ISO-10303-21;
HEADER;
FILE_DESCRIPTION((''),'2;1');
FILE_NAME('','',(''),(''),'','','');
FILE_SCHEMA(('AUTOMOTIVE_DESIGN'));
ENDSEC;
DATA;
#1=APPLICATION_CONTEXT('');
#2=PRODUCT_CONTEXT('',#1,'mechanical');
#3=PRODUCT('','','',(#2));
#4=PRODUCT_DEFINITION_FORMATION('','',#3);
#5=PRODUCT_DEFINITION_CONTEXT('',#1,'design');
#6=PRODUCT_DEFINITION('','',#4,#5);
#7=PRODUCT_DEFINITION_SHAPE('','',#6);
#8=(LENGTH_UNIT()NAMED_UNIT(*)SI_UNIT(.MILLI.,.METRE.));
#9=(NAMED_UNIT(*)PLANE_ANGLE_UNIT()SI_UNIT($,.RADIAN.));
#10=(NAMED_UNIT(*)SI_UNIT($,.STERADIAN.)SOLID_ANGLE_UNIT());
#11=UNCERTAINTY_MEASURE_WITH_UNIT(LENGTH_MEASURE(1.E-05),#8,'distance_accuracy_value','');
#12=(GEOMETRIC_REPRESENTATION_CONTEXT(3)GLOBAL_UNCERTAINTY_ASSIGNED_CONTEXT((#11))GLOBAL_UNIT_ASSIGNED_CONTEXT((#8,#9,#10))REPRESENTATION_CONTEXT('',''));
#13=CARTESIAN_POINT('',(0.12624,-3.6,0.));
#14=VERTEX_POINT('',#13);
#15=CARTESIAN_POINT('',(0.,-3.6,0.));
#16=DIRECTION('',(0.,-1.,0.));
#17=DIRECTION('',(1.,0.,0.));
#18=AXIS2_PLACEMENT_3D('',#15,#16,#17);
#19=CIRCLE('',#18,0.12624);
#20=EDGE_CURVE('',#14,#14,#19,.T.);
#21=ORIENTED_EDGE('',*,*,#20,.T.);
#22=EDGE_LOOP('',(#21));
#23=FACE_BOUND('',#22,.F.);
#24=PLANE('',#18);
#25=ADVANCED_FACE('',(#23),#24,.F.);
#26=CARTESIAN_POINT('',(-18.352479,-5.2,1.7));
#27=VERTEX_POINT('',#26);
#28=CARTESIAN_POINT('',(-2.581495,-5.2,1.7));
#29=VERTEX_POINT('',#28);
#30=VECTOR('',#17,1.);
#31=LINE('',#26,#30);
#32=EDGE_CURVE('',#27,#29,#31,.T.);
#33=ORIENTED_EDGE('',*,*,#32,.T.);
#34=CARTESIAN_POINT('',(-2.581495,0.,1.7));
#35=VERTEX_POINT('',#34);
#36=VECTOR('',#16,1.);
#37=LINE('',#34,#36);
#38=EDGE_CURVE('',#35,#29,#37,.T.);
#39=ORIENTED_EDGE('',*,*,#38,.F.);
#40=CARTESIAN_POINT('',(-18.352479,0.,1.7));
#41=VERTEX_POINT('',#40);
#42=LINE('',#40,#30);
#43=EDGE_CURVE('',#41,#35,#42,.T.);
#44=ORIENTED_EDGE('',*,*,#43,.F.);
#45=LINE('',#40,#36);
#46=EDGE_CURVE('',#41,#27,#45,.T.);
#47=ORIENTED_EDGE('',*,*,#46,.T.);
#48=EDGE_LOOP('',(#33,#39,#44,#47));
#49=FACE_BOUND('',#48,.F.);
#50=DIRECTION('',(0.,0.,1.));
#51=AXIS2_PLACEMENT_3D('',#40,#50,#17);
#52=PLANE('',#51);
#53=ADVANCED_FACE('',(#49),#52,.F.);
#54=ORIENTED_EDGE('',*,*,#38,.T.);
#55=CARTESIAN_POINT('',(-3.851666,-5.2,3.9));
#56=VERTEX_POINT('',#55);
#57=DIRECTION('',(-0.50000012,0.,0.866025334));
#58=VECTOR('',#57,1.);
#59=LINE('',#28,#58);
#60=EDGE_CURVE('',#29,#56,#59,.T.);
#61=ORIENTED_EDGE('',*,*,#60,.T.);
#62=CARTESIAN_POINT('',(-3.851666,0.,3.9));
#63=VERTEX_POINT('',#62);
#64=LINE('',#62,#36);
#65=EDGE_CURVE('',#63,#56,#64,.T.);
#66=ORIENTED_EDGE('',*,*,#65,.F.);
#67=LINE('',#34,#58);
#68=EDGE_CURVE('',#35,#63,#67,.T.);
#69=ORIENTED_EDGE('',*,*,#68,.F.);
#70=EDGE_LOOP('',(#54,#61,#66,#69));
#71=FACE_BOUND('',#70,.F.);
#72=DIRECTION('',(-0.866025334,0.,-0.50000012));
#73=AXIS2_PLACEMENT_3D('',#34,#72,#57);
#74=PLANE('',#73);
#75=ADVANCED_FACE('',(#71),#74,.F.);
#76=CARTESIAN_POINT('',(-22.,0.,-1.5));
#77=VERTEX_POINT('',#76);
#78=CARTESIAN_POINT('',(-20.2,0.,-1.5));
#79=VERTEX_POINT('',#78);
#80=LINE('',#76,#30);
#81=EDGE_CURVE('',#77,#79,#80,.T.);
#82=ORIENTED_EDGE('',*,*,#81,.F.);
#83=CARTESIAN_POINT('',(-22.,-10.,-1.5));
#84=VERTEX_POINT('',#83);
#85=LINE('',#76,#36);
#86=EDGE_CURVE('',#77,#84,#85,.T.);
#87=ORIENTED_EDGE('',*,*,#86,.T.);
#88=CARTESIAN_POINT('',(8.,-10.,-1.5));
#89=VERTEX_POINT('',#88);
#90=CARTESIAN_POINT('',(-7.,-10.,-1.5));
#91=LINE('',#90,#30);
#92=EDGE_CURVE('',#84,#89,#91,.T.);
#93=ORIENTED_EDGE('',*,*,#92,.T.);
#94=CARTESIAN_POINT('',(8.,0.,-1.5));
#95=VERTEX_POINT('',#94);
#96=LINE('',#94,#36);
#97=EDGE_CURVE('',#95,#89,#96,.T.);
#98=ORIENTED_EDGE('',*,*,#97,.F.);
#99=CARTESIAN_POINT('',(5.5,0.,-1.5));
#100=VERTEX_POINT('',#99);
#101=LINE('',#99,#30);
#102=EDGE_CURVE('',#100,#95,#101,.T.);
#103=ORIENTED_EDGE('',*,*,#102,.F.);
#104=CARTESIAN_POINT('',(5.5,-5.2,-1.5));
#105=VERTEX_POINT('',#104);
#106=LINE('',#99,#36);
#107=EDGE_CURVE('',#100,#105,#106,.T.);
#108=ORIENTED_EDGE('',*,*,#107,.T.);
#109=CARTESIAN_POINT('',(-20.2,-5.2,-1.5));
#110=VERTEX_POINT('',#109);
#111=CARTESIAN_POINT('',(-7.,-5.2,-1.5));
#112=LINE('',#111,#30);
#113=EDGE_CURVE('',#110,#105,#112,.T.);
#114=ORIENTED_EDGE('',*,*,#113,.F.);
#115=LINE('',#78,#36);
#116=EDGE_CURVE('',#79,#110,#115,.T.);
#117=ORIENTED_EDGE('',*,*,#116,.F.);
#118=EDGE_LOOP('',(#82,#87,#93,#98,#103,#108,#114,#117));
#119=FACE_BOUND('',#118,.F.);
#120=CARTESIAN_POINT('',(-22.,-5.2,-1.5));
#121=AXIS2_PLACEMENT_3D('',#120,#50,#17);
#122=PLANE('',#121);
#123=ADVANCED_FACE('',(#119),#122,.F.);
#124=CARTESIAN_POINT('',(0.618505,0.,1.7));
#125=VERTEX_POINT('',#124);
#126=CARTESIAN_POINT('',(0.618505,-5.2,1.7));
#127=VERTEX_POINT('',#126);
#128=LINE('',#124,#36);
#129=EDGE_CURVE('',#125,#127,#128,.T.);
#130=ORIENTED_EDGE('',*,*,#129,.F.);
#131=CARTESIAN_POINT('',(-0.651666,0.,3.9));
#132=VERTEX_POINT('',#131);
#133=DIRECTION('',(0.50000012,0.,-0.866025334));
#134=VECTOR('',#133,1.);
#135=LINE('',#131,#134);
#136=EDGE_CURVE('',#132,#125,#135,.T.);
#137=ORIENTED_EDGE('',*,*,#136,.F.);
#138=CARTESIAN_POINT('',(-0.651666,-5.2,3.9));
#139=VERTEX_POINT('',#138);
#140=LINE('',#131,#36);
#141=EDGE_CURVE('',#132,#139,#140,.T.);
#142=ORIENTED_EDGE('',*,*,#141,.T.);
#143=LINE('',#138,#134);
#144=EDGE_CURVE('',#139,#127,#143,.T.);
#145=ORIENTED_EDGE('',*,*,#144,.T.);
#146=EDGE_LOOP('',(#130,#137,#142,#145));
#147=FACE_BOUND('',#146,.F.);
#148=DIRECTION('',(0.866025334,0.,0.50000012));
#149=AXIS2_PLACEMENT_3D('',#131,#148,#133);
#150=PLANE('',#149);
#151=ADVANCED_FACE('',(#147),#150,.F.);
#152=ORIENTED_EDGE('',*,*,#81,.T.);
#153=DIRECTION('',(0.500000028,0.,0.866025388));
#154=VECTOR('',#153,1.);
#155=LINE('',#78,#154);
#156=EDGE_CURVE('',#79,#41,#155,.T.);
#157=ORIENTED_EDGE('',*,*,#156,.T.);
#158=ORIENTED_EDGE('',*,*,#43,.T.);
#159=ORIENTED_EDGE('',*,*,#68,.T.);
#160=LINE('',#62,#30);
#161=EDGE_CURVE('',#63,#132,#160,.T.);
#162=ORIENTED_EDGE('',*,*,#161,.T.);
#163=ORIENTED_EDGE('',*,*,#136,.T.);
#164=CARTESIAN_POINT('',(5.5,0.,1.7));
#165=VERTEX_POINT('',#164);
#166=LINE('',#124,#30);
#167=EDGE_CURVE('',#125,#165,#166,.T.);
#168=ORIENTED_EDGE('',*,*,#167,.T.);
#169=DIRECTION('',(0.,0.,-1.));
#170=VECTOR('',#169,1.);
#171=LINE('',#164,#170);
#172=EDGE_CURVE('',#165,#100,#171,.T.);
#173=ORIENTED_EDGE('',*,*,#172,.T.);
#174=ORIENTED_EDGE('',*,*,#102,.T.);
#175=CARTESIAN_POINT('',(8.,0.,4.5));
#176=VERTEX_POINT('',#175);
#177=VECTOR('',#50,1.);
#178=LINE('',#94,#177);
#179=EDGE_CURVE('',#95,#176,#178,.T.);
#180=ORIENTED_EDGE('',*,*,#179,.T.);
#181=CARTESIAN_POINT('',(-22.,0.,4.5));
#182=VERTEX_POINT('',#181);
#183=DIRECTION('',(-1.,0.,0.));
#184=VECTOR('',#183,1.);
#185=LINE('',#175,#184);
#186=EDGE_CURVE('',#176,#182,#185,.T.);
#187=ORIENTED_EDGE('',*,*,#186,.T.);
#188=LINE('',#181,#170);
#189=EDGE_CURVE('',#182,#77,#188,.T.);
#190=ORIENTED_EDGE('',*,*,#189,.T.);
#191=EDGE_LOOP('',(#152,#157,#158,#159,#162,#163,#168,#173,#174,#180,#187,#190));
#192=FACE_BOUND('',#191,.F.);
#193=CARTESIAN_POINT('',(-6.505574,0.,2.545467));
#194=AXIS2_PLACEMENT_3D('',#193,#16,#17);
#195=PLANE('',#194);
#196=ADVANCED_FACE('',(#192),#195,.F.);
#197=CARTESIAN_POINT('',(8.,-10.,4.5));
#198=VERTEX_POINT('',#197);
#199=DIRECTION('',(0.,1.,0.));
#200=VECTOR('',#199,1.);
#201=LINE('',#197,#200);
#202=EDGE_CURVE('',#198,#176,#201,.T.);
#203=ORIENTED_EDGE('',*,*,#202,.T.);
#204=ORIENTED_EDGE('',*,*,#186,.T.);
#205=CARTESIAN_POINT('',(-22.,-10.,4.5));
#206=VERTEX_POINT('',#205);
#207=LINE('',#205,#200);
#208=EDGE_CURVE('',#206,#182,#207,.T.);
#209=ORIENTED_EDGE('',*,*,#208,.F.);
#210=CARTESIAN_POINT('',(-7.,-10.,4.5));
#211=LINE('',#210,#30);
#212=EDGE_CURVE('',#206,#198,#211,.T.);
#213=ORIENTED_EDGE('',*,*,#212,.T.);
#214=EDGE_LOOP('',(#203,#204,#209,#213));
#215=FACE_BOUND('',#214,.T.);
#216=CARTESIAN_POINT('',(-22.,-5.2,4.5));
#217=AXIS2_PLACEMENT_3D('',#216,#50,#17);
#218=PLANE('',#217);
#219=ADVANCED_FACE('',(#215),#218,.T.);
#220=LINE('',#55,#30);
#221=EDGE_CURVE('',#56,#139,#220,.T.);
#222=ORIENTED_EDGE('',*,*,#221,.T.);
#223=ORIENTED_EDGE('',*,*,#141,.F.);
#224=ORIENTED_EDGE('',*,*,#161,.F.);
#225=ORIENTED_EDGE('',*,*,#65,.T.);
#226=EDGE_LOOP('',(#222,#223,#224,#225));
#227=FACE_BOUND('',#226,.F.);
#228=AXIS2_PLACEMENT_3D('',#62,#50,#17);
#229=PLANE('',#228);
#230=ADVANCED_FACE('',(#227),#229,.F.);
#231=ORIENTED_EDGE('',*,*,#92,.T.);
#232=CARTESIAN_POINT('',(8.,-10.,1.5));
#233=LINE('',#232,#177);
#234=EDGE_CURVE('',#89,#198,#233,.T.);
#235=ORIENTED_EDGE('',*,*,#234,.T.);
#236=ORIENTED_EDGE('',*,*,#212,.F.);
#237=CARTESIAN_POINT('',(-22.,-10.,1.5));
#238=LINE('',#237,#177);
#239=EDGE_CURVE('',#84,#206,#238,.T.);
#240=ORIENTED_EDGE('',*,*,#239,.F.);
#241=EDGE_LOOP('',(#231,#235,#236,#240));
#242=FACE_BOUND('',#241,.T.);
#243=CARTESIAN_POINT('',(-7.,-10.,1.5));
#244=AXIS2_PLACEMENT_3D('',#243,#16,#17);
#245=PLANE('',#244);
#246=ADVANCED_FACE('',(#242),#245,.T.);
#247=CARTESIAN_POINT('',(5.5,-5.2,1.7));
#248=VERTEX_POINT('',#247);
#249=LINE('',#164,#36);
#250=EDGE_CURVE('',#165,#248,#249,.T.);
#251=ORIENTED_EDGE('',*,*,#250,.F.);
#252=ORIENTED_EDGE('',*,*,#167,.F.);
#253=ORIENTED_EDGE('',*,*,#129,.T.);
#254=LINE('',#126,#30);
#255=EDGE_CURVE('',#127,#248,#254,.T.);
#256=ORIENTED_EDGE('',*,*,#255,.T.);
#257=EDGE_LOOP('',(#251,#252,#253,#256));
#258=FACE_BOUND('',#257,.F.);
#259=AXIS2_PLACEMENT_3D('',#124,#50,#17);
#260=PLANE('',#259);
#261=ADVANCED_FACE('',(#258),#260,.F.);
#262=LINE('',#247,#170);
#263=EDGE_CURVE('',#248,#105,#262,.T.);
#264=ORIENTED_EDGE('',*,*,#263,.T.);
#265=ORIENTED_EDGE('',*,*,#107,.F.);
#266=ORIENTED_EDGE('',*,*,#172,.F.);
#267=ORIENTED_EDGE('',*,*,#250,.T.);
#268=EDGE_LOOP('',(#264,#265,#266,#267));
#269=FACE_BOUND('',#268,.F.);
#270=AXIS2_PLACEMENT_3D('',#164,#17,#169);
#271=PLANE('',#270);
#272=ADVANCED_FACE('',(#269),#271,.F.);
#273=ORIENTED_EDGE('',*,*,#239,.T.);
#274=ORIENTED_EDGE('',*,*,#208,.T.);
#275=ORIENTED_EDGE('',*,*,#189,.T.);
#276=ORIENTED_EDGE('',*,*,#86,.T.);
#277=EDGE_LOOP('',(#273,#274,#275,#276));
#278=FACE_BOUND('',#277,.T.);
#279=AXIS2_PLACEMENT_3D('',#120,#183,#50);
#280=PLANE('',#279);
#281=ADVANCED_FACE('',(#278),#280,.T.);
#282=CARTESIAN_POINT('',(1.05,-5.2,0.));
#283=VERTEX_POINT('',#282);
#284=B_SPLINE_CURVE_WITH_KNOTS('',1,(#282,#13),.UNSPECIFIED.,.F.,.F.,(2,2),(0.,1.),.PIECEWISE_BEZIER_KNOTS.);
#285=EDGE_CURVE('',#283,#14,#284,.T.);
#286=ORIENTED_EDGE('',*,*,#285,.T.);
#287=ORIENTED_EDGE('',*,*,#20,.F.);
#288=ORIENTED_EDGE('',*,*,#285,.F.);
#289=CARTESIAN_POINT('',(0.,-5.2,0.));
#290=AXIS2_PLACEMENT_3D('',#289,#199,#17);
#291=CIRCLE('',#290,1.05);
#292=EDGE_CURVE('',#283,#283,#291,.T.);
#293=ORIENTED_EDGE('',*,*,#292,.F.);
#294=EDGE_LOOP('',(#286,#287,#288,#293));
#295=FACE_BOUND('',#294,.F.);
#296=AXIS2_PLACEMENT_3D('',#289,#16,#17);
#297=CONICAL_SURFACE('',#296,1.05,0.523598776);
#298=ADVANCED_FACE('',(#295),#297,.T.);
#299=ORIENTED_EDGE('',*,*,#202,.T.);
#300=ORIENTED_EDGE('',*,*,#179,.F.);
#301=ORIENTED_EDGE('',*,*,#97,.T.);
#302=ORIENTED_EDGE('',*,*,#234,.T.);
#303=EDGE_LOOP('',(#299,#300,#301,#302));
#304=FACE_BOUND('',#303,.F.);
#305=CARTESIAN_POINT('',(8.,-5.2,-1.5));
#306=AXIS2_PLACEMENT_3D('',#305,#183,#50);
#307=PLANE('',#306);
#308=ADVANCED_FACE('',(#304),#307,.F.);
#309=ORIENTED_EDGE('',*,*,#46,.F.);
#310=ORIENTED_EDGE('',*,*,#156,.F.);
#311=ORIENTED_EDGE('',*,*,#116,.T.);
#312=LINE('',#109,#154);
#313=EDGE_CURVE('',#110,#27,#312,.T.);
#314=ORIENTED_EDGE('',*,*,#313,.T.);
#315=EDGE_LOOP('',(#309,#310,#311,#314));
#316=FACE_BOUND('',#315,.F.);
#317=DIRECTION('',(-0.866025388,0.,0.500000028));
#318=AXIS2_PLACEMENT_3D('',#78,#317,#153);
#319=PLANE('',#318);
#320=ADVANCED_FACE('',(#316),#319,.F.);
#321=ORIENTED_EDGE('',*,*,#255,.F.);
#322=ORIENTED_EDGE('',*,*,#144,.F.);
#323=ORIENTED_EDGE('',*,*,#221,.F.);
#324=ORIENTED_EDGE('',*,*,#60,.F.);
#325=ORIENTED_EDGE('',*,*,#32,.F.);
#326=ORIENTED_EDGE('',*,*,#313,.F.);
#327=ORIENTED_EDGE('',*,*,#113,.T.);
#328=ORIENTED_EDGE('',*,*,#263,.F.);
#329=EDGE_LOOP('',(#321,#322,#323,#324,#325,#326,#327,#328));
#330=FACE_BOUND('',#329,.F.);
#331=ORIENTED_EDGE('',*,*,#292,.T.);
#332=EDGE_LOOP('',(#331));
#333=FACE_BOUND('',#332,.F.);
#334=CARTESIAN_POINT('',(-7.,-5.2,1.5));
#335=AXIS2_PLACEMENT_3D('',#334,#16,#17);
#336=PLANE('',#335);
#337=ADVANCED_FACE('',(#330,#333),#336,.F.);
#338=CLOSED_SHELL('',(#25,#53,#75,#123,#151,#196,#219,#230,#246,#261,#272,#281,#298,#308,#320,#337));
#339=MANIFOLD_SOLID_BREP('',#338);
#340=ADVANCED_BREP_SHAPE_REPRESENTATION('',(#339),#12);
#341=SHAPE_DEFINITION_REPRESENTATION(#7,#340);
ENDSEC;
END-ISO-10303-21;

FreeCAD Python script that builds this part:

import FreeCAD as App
import Part
import Sketcher
from FreeCAD import Vector
Q = App.Units.Quantity

doc = App.newDocument("Part")
body = doc.addObject("PartDesign::Body", "Body")
body.AllowCompound = True

# Sketch on XZ plane
sketch1 = body.newObject("Sketcher::SketchObject", "Sketch")
sketch1.AttachmentSupport = (doc.getObject("XZ_Plane"), [""])
sketch1.MapMode = "FlatFace"
sketch1.addGeometry(Part.LineSegment(Vector(-20.2, -1.5, 0), Vector(-18.4, 1.7, 0)), False)
sketch1.addGeometry(Part.LineSegment(Vector(-18.4, 1.7, 0), Vector(-2.6, 1.7, 0)), False)
sketch1.addGeometry(Part.LineSegment(Vector(-2.6, 1.7, 0), Vector(-3.9, 3.9, 0)), False)
sketch1.addGeometry(Part.LineSegment(Vector(-3.9, 3.9, 0), Vector(-0.7, 3.9, 0)), False)
sketch1.addGeometry(Part.LineSegment(Vector(-0.7, 3.9, 0), Vector(0.6, 1.7, 0)), False)
sketch1.addGeometry(Part.LineSegment(Vector(0.6, 1.7, 0), Vector(5.5, 1.7, 0)), False)
sketch1.addGeometry(Part.LineSegment(Vector(5.5, 1.7, 0), Vector(5.5, -1.5, 0)), False)
sketch1.addGeometry(Part.LineSegment(Vector(5.5, -1.5, 0), Vector(8, -1.5, 0)), False)
sketch1.addGeometry(Part.LineSegment(Vector(8, -1.5, 0), Vector(8, 4.5, 0)), False)
sketch1.addGeometry(Part.LineSegment(Vector(8, 4.5, 0), Vector(-22, 4.5, 0)), False)
sketch1.addGeometry(Part.LineSegment(Vector(-22, 4.5, 0), Vector(-22, -1.5, 0)), False)
sketch1.addGeometry(Part.LineSegment(Vector(-22, -1.5, 0), Vector(-20.2, -1.5, 0)), False)
sketch1.addConstraint(Sketcher.Constraint("Coincident", 0, 2, 1, 1))
sketch1.addConstraint(Sketcher.Constraint("Coincident", 1, 2, 2, 1))
sketch1.addConstraint(Sketcher.Constraint("Coincident", 2, 2, 3, 1))
sketch1.addConstraint(Sketcher.Constraint("Coincident", 3, 2, 4, 1))
sketch1.addConstraint(Sketcher.Constraint("Coincident", 4, 2, 5, 1))
sketch1.addConstraint(Sketcher.Constraint("Coincident", 5, 2, 6, 1))
sketch1.addConstraint(Sketcher.Constraint("Coincident", 6, 2, 7, 1))
sketch1.addConstraint(Sketcher.Constraint("Coincident", 7, 2, 8, 1))
sketch1.addConstraint(Sketcher.Constraint("Coincident", 8, 2, 9, 1))
sketch1.addConstraint(Sketcher.Constraint("Coincident", 9, 2, 10, 1))
sketch1.addConstraint(Sketcher.Constraint("Coincident", 10, 2, 11, 1))
sketch1.addConstraint(Sketcher.Constraint("Coincident", 11, 2, 0, 1))
sketch1.addConstraint(Sketcher.Constraint("Horizontal", 1))
sketch1.addConstraint(Sketcher.Constraint("Horizontal", 3))
sketch1.addConstraint(Sketcher.Constraint("Horizontal", 5))
sketch1.addConstraint(Sketcher.Constraint("Vertical", 6))
sketch1.addConstraint(Sketcher.Constraint("Horizontal", 7))
sketch1.addConstraint(Sketcher.Constraint("Vertical", 8))
sketch1.addConstraint(Sketcher.Constraint("Horizontal", 9))
sketch1.addConstraint(Sketcher.Constraint("Vertical", 10))
sketch1.addConstraint(Sketcher.Constraint("Horizontal", 11))
sketch1.addConstraint(Sketcher.Constraint("Parallel", 2, 4))
sketch1.addConstraint(Sketcher.Constraint("Horizontal", 1, 2, 4, 2))
sketch1.addConstraint(Sketcher.Constraint("Horizontal", 7, 2, 10, 2))
sketch1.addConstraint(Sketcher.Constraint("Equal", 3, 6))
sketch1.addConstraint(Sketcher.Constraint("DistanceX", 9, 2, 9, 1, 30.0))
sketch1.addConstraint(Sketcher.Constraint("DistanceY", 8, 1, 8, 2, 6.0))
sketch1.addConstraint(Sketcher.Constraint("Angle", 0, Q("59.999998 deg")))
sketch1.addConstraint(Sketcher.Constraint("Angle", 2, Q("120.000008 deg")))
sketch1.addConstraint(Sketcher.Constraint("DistanceX", 3, 1, 3, 2, 3.2))
sketch1.addConstraint(Sketcher.Constraint("DistanceX", 7, 1, 7, 2, 2.5))
sketch1.addConstraint(Sketcher.Constraint("DistanceX", 11, 1, 11, 2, 1.8))
sketch1.addConstraint(Sketcher.Constraint("DistanceX", -1, 1, 7, 2, 8.0))
sketch1.addConstraint(Sketcher.Constraint("DistanceY", -1, 1, 0, 2, 1.7))
sketch1.addConstraint(Sketcher.Constraint("DistanceY", -1, 1, 2, 2, 3.9))
sketch1.addConstraint(Sketcher.Constraint("DistanceX", 1, 1, 1, 2, 15.770984))
pad1 = body.newObject("PartDesign::Pad", "Pad")
pad1.Profile = sketch1
pad1.Length = 5.2

# Sketch on XZ plane
sketch2 = body.newObject("Sketcher::SketchObject", "Sketch001")
sketch2.AttachmentSupport = (doc.getObject("XZ_Plane"), [""])
sketch2.MapMode = "FlatFace"
sketch2.AttachmentOffset = App.Placement(Vector(0, 0, 5.2), App.Rotation())
sketch2.addGeometry(Part.Circle(Vector(0, 0, 0), Vector(0, 0, 1), 1.1), False)
sketch2.addConstraint(Sketcher.Constraint("Coincident", 0, 3, -1, 1))
sketch2.addConstraint(Sketcher.Constraint("Diameter", 0, 2.1))
pad2 = body.newObject("PartDesign::Pad", "Pad001")
pad2.Profile = sketch2
pad2.Length = 1.6
pad2.Reversed = True
pad2.TaperAngle = -30

# Sketch on XZ plane
sketch3 = body.newObject("Sketcher::SketchObject", "Sketch002")
sketch3.AttachmentSupport = (doc.getObject("XZ_Plane"), [""])
sketch3.MapMode = "FlatFace"
sketch3.AttachmentOffset = App.Placement(Vector(0, 0, 5.2), App.Rotation())
sketch3.addGeometry(Part.LineSegment(Vector(-22, 4, 0), Vector(-22, -2, 0)), False)
sketch3.addGeometry(Part.LineSegment(Vector(-22, -2, 0), Vector(8, -2, 0)), False)
sketch3.addGeometry(Part.LineSegment(Vector(8, -2, 0), Vector(8, 4, 0)), False)
sketch3.addGeometry(Part.LineSegment(Vector(8, 4, 0), Vector(-22, 4, 0)), False)
sketch3.addConstraint(Sketcher.Constraint("Coincident", 0, 2, 1, 1))
sketch3.addConstraint(Sketcher.Constraint("Coincident", 1, 2, 2, 1))
sketch3.addConstraint(Sketcher.Constraint("Coincident", 2, 2, 3, 1))
sketch3.addConstraint(Sketcher.Constraint("Coincident", 3, 2, 0, 1))
sketch3.addConstraint(Sketcher.Constraint("Vertical", 0))
sketch3.addConstraint(Sketcher.Constraint("Horizontal", 1))
sketch3.addConstraint(Sketcher.Constraint("Vertical", 2))
sketch3.addConstraint(Sketcher.Constraint("Horizontal", 3))
sketch3.addConstraint(Sketcher.Constraint("DistanceX", 1, 1, 1, 2, 30.0))
sketch3.addConstraint(Sketcher.Constraint("DistanceY", 0, 2, 0, 1, 6.0))
sketch3.addConstraint(Sketcher.Constraint("DistanceX", 0, 2, -1, 1, 22.0))
sketch3.addConstraint(Sketcher.Constraint("DistanceY", 0, 2, -1, 1, 1.5))
pad3 = body.newObject("PartDesign::Pad", "Pad002")
pad3.Profile = sketch3
pad3.Length = 4.8

doc.recompute()
